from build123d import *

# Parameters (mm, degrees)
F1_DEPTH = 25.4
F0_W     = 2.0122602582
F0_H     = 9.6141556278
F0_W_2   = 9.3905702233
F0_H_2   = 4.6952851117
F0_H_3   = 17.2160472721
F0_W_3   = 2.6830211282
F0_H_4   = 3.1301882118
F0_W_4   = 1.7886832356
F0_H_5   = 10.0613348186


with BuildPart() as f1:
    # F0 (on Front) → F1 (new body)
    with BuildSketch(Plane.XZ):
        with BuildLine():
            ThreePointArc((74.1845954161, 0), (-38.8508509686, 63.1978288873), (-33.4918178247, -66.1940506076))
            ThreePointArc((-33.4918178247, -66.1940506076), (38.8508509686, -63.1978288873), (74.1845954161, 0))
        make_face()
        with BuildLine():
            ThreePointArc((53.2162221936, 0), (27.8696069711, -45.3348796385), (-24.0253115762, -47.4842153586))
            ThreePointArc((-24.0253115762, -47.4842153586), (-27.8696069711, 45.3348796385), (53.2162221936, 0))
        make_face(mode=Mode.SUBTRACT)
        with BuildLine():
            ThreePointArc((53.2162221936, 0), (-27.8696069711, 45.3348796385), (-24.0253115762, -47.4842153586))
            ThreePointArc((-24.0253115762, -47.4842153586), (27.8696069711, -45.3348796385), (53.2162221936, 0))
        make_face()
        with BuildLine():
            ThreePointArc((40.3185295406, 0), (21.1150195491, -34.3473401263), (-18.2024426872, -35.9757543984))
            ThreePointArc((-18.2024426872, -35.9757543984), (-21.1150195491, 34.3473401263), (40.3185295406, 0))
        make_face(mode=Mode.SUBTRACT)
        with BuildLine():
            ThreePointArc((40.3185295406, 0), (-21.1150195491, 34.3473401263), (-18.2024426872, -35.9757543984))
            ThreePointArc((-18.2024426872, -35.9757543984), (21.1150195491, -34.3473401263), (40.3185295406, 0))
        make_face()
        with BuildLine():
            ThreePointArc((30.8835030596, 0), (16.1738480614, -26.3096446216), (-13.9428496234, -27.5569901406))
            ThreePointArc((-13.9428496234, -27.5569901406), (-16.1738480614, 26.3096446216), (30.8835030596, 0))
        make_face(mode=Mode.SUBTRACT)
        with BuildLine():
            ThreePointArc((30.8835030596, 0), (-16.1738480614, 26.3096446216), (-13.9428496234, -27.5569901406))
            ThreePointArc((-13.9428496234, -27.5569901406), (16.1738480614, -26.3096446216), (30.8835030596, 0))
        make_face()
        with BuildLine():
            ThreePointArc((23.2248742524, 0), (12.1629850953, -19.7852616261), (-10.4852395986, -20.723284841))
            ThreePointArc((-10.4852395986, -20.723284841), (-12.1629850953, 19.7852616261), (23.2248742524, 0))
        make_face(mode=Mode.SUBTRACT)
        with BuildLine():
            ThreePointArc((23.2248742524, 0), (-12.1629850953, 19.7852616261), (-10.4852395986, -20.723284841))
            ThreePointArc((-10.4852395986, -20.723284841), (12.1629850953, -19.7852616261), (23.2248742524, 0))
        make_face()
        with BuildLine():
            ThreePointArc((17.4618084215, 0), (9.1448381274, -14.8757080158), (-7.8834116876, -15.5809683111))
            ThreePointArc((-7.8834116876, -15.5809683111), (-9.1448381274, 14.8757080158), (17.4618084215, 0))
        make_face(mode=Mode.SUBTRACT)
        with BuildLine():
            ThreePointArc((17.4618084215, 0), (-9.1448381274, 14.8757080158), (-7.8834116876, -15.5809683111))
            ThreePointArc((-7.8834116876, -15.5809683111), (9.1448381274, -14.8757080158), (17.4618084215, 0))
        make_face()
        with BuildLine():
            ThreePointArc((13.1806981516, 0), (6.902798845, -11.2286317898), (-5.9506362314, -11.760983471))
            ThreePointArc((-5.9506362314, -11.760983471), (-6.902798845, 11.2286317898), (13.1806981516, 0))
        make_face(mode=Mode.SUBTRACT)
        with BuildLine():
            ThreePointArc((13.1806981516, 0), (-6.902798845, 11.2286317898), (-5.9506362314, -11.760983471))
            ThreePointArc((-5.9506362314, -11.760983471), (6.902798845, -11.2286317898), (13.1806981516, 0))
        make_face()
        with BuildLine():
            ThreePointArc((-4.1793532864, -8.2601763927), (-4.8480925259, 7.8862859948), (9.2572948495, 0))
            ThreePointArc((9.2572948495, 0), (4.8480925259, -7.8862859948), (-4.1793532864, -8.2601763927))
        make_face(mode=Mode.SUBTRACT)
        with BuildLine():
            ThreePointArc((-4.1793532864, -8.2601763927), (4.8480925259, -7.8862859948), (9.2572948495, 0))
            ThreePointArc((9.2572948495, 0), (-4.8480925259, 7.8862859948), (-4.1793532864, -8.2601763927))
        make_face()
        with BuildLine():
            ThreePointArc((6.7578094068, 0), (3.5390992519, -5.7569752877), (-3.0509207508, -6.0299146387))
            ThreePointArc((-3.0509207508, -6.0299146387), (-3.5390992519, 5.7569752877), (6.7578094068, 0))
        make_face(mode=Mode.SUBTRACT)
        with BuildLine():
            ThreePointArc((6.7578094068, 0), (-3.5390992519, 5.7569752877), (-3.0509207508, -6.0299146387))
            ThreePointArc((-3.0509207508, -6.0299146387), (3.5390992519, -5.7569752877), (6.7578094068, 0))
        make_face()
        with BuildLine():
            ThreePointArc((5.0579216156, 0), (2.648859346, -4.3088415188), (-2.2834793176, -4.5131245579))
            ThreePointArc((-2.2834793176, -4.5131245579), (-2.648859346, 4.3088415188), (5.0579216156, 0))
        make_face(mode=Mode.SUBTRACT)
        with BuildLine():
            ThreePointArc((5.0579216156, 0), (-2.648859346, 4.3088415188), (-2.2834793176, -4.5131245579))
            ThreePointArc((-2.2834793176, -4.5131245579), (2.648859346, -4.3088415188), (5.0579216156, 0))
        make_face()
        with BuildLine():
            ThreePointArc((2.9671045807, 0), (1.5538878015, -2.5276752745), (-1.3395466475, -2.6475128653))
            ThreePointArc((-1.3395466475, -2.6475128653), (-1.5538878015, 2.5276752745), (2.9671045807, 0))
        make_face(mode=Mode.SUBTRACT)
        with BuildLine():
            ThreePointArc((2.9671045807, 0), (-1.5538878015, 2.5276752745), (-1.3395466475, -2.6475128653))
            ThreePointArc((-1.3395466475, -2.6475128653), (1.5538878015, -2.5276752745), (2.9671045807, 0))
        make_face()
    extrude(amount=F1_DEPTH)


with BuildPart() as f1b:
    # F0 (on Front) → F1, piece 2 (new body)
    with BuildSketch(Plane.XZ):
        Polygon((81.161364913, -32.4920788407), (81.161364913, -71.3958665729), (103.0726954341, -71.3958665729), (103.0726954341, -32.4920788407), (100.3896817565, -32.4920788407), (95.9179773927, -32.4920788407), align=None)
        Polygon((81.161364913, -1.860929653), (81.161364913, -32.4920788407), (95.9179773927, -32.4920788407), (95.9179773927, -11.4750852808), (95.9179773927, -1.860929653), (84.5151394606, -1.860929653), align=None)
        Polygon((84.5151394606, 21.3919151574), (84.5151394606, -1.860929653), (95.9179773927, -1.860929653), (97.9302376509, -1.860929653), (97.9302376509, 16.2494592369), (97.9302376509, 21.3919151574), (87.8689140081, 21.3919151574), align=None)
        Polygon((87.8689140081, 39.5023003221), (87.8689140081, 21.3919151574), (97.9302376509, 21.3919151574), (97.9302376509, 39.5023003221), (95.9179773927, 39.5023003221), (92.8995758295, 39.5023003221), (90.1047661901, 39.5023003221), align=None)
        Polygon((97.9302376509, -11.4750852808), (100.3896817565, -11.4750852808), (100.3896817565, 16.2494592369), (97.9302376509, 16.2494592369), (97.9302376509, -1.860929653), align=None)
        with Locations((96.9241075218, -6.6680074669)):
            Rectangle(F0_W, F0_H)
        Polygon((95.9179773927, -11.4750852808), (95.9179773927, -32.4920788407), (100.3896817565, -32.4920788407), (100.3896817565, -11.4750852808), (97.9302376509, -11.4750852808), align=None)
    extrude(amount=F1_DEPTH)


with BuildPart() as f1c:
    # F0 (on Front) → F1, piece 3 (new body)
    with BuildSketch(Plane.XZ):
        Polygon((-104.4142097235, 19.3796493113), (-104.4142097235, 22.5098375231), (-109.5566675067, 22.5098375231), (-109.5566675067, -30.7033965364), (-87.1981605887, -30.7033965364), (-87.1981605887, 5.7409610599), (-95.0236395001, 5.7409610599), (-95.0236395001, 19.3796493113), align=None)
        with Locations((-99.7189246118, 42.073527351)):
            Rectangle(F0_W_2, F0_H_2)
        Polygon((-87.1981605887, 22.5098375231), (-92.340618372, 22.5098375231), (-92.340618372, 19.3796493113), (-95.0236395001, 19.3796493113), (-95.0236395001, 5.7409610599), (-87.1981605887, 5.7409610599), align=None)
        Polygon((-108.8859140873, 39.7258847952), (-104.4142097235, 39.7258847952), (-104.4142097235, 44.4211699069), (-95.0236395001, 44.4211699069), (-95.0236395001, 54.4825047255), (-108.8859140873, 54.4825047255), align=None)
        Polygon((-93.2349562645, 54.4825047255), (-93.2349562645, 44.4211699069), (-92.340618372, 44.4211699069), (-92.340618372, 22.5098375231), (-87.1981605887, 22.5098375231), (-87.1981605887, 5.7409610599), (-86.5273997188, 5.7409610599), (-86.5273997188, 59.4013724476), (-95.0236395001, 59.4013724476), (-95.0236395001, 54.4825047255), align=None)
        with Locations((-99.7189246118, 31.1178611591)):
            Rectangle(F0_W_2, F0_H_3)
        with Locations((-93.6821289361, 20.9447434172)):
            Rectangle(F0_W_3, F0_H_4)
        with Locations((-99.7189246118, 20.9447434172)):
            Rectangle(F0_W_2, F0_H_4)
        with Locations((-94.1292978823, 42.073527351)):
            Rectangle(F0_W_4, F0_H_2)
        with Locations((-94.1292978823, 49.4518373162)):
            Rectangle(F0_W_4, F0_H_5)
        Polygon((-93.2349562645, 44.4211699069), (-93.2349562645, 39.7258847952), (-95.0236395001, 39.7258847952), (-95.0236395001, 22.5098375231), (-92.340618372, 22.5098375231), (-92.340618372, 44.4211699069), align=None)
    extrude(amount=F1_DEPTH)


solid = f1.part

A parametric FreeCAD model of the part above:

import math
import FreeCAD as App
import Part
import Sketcher
Q = App.Units.Quantity

doc = App.newDocument("Part")
params = doc.addObject("Spreadsheet::Sheet", "Params")
for row, (alias, value) in enumerate([
    ("pad1_length", "1 in"),
    ("pad2_length", "1 in"),
    ("pad3_length", "1 in"),
], start=1):
    params.set(f"A{row}", alias)
    params.set(f"B{row}", "=" + value)
    params.setAlias(f"B{row}", alias)

body = doc.addObject("PartDesign::Body", "Body")

# Sketch on XZ plane
sketch1 = body.newObject("Sketcher::SketchObject", "Sketch")
sketch1.AttachmentSupport = (doc.getObject("XZ_Plane"), [""])
sketch1.MapMode = "FlatFace"
sketch1.addGeometry([
    Part.ArcOfCircle(Part.Circle(App.Vector(0, 0, 0), App.Vector(0, 0, 1), 74), math.radians(0), math.radians(243)),
    Part.ArcOfCircle(Part.Circle(App.Vector(0, 0, 0), App.Vector(0, 0, 1), 74), math.radians(-117), math.radians(0)),
], False)
sketch1.addConstraint([
    Sketcher.Constraint("Tangent", 0, 1, 1, 2),
    Sketcher.Constraint("Coincident", 1, 1, 0, 2),
    Sketcher.Constraint("Coincident", 0, 3, -1, 1),
    Sketcher.Constraint("PointOnObject", 0, 1, -1),
    Sketcher.Constraint("Radius", 0, Q("74.184595 mm")),
    Sketcher.Constraint("DistanceY", 1, 1, -1, 1, Q("66.194051 mm")),
])
pad1 = body.newObject("PartDesign::Pad", "Pad")
pad1.Profile = sketch1
pad1.setExpression("Length", "Params.pad1_length")
body2 = doc.addObject("PartDesign::Body", "Body001")

# Sketch on XZ plane
sketch2 = body2.newObject("Sketcher::SketchObject", "Sketch001")
sketch2.AttachmentSupport = (doc.getObject("XZ_Plane001"), [""])
sketch2.MapMode = "FlatFace"
sketch2.addGeometry([
    Part.LineSegment(App.Vector(81.2, -71.4, 0), App.Vector(103.1, -71.4, 0)),  # 0
    Part.LineSegment(App.Vector(103.1, -71.4, 0), App.Vector(103.1, -32.5, 0)),  # 1
    Part.LineSegment(App.Vector(103.1, -32.5, 0), App.Vector(100.4, -32.5, 0)),  # 2
    Part.LineSegment(App.Vector(100.4, -32.5, 0), App.Vector(100.4, 16.2, 0)),  # 3
    Part.LineSegment(App.Vector(100.4, 16.2, 0), App.Vector(97.9, 16.2, 0)),  # 4
    Part.LineSegment(App.Vector(97.9, 16.2, 0), App.Vector(97.9, 39.5, 0)),  # 5
    Part.LineSegment(App.Vector(97.9, 39.5, 0), App.Vector(87.9, 39.5, 0)),  # 6
    Part.LineSegment(App.Vector(87.9, 39.5, 0), App.Vector(87.9, 21.4, 0)),  # 7
    Part.LineSegment(App.Vector(87.9, 21.4, 0), App.Vector(84.5, 21.4, 0)),  # 8
    Part.LineSegment(App.Vector(84.5, 21.4, 0), App.Vector(84.5, -1.9, 0)),  # 9
    Part.LineSegment(App.Vector(84.5, -1.9, 0), App.Vector(81.2, -1.9, 0)),  # 10
    Part.LineSegment(App.Vector(81.2, -1.9, 0), App.Vector(81.2, -71.4, 0)),  # 11
], False)
sketch2.addConstraint([
    Sketcher.Constraint("Coincident", 0, 2, 1, 1),
    Sketcher.Constraint("Coincident", 1, 2, 2, 1),
    Sketcher.Constraint("Coincident", 2, 2, 3, 1),
    Sketcher.Constraint("Coincident", 3, 2, 4, 1),
    Sketcher.Constraint("Coincident", 4, 2, 5, 1),
    Sketcher.Constraint("Coincident", 5, 2, 6, 1),
    Sketcher.Constraint("Coincident", 6, 2, 7, 1),
    Sketcher.Constraint("Coincident", 7, 2, 8, 1),
    Sketcher.Constraint("Coincident", 8, 2, 9, 1),
    Sketcher.Constraint("Coincident", 9, 2, 10, 1),
    Sketcher.Constraint("Coincident", 10, 2, 11, 1),
    Sketcher.Constraint("Coincident", 11, 2, 0, 1),
    Sketcher.Constraint("Horizontal", 0),
    Sketcher.Constraint("Vertical", 1),
    Sketcher.Constraint("Horizontal", 2),
    Sketcher.Constraint("Vertical", 3),
    Sketcher.Constraint("Horizontal", 4),
    Sketcher.Constraint("Vertical", 5),
    Sketcher.Constraint("Horizontal", 6),
    Sketcher.Constraint("Vertical", 7),
    Sketcher.Constraint("Horizontal", 8),
    Sketcher.Constraint("Vertical", 9),
    Sketcher.Constraint("Horizontal", 10),
    Sketcher.Constraint("Vertical", 11),
    Sketcher.Constraint("Equal", 8, 10),
    Sketcher.Constraint("DistanceX", 0, 1, 0, 2, Q("21.911331 mm")),
    Sketcher.Constraint("DistanceY", 3, 1, 3, 2, Q("48.741538 mm")),
    Sketcher.Constraint("DistanceY", 5, 1, 5, 2, Q("23.252841 mm")),
    Sketcher.Constraint("DistanceY", -1, 1, 5, 2, Q("39.5023 mm")),
    Sketcher.Constraint("DistanceX", 8, 2, 4, 2, Q("13.415098 mm")),
    Sketcher.Constraint("DistanceX", 2, 2, 2, 1, Q("2.683014 mm")),
    Sketcher.Constraint("DistanceX", 4, 2, 4, 1, Q("2.459444 mm")),
    Sketcher.Constraint("DistanceY", 1, 1, 1, 2, Q("38.903788 mm")),
    Sketcher.Constraint("DistanceY", 7, 2, 7, 1, Q("18.110385 mm")),
    Sketcher.Constraint("DistanceY", 9, 2, 9, 1, Q("23.252845 mm")),
    Sketcher.Constraint("DistanceX", -1, 1, 2, 2, Q("100.389682 mm")),
])
pad2 = body2.newObject("PartDesign::Pad", "Pad001")
pad2.Profile = sketch2
pad2.setExpression("Length", "Params.pad2_length")
body3 = doc.addObject("PartDesign::Body", "Body002")

# Sketch on XZ plane
sketch3 = body3.newObject("Sketcher::SketchObject", "Sketch002")
sketch3.AttachmentSupport = (doc.getObject("XZ_Plane002"), [""])
sketch3.MapMode = "FlatFace"
sketch3.addGeometry([
    Part.LineSegment(App.Vector(-95, 59.4, 0), App.Vector(-95, 54.5, 0)),  # 0
    Part.LineSegment(App.Vector(-95, 54.5, 0), App.Vector(-108.9, 54.5, 0)),  # 1
    Part.LineSegment(App.Vector(-108.9, 54.5, 0), App.Vector(-108.9, 39.7, 0)),  # 2
    Part.LineSegment(App.Vector(-108.9, 39.7, 0), App.Vector(-104.4, 39.7, 0)),  # 3
    Part.LineSegment(App.Vector(-104.4, 39.7, 0), App.Vector(-104.4, 22.5, 0)),  # 4
    Part.LineSegment(App.Vector(-104.4, 22.5, 0), App.Vector(-109.6, 22.5, 0)),  # 5
    Part.LineSegment(App.Vector(-109.6, 22.5, 0), App.Vector(-109.6, -30.7, 0)),  # 6
    Part.LineSegment(App.Vector(-109.6, -30.7, 0), App.Vector(-87.2, -30.7, 0)),  # 7
    Part.LineSegment(App.Vector(-87.2, -30.7, 0), App.Vector(-87.2, 5.7, 0)),  # 8
    Part.LineSegment(App.Vector(-87.2, 5.7, 0), App.Vector(-86.5, 5.7, 0)),  # 9
    Part.LineSegment(App.Vector(-86.5, 5.7, 0), App.Vector(-86.5, 59.4, 0)),  # 10
    Part.LineSegment(App.Vector(-86.5, 59.4, 0), App.Vector(-95, 59.4, 0)),  # 11
], False)
sketch3.addConstraint([
    Sketcher.Constraint("Coincident", 0, 2, 1, 1),
    Sketcher.Constraint("Coincident", 1, 2, 2, 1),
    Sketcher.Constraint("Coincident", 2, 2, 3, 1),
    Sketcher.Constraint("Coincident", 3, 2, 4, 1),
    Sketcher.Constraint("Coincident", 4, 2, 5, 1),
    Sketcher.Constraint("Coincident", 5, 2, 6, 1),
    Sketcher.Constraint("Coincident", 6, 2, 7, 1),
    Sketcher.Constraint("Coincident", 7, 2, 8, 1),
    Sketcher.Constraint("Coincident", 8, 2, 9, 1),
    Sketcher.Constraint("Coincident", 9, 2, 10, 1),
    Sketcher.Constraint("Coincident", 10, 2, 11, 1),
    Sketcher.Constraint("Coincident", 11, 2, 0, 1),
    Sketcher.Constraint("Vertical", 0),
    Sketcher.Constraint("Horizontal", 1),
    Sketcher.Constraint("Vertical", 2),
    Sketcher.Constraint("Horizontal", 3),
    Sketcher.Constraint("Vertical", 4),
    Sketcher.Constraint("Horizontal", 5),
    Sketcher.Constraint("Vertical", 6),
    Sketcher.Constraint("Horizontal", 7),
    Sketcher.Constraint("Vertical", 8),
    Sketcher.Constraint("Horizontal", 9),
    Sketcher.Constraint("Vertical", 10),
    Sketcher.Constraint("Horizontal", 11),
    Sketcher.Constraint("DistanceX", 9, 1, 9, 2, Q("0.670761 mm")),
    Sketcher.Constraint("DistanceX", 11, 2, 11, 1, Q("8.49624 mm")),
    Sketcher.Constraint("DistanceY", 2, 2, 2, 1, Q("14.75662 mm")),
    Sketcher.Constraint("DistanceY", 10, 1, 10, 2, Q("53.660411 mm")),
    Sketcher.Constraint("DistanceX", 9, 2, -1, 1, Q("86.5274 mm")),
    Sketcher.Constraint("DistanceY", 6, 2, 1, 2, Q("85.185901 mm")),
    Sketcher.Constraint("DistanceX", 1, 2, 1, 1, Q("13.862275 mm")),
    Sketcher.Constraint("DistanceX", 3, 1, 3, 2, Q("4.471704 mm")),
    Sketcher.Constraint("DistanceX", 5, 2, 5, 1, Q("5.142458 mm")),
    Sketcher.Constraint("DistanceY", 0, 2, 0, 1, Q("4.918868 mm")),
    Sketcher.Constraint("DistanceY", 4, 2, 4, 1, Q("17.216047 mm")),
    Sketcher.Constraint("DistanceY", -1, 1, 8, 2, Q("5.740961 mm")),
])
pad3 = body3.newObject("PartDesign::Pad", "Pad002")
pad3.Profile = sketch3
pad3.setExpression("Length", "Params.pad3_length")
body2.Visibility = False
body3.Visibility = False

doc.recompute()
